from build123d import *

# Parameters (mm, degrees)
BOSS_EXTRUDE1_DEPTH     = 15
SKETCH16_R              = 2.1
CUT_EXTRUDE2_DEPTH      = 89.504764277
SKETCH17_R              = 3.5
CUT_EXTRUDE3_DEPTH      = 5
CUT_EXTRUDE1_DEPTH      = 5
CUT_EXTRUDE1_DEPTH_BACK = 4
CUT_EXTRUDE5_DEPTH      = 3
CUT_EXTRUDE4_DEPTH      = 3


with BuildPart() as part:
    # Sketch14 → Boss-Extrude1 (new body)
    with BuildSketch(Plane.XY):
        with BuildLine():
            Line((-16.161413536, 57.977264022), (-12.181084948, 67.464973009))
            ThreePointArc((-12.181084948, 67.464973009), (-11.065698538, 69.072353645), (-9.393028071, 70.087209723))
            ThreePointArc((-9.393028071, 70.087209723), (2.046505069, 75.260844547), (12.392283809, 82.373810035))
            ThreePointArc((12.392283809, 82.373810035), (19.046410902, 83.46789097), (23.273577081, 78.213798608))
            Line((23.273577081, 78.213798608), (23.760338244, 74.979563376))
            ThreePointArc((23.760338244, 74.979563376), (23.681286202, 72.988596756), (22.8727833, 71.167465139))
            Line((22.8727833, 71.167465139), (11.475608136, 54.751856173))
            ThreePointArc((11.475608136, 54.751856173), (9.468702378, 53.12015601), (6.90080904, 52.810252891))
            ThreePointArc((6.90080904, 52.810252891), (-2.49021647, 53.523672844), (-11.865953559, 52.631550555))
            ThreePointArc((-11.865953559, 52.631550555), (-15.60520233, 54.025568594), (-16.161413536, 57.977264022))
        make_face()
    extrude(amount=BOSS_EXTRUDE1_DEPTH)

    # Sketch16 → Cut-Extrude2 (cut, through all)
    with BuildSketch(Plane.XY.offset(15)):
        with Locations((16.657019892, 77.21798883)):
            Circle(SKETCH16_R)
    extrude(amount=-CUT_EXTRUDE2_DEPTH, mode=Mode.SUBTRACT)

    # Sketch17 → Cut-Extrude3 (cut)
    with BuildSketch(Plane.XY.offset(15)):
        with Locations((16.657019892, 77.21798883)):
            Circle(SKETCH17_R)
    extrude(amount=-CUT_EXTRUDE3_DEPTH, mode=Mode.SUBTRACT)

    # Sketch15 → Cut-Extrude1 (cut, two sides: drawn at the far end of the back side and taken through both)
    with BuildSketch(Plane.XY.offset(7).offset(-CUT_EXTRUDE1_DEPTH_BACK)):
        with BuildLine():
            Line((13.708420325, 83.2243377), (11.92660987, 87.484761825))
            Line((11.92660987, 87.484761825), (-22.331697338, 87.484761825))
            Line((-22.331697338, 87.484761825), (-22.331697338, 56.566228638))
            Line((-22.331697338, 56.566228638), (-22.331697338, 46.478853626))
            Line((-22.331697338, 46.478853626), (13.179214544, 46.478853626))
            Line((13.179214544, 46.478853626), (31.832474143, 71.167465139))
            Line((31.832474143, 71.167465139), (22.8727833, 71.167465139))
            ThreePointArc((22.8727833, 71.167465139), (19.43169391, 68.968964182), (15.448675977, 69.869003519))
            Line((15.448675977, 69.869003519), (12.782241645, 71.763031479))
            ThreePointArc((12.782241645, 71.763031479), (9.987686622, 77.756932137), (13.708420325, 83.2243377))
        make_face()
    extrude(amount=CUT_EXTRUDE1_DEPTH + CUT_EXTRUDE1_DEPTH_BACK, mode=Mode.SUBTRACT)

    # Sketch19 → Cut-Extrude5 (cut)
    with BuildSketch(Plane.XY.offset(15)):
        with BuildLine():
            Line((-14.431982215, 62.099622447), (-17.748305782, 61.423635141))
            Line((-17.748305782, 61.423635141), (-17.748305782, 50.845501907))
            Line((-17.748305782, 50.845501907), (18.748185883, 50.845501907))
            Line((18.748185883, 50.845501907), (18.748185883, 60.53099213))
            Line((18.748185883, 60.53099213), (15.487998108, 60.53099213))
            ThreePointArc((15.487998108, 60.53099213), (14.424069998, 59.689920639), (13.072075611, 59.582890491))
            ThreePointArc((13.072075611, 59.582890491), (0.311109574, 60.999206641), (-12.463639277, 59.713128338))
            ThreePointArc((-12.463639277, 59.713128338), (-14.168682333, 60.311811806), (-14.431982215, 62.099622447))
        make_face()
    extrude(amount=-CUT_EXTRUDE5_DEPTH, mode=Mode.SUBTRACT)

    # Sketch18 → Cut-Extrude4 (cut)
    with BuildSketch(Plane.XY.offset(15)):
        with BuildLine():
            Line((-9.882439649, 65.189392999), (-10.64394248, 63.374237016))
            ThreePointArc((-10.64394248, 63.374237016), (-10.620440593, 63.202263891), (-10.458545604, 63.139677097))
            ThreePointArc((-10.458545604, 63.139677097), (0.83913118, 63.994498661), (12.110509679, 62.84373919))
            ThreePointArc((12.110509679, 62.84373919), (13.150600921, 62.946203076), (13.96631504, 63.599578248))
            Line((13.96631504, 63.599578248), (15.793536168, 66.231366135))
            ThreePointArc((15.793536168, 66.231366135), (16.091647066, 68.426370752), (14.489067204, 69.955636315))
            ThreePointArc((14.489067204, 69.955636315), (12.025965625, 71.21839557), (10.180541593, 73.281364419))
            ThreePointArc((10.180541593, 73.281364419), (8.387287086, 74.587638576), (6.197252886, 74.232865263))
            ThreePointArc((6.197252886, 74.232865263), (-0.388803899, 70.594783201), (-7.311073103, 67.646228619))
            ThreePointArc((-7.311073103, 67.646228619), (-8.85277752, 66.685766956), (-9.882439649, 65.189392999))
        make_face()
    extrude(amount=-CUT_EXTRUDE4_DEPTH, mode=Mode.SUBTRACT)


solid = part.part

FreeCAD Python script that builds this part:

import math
import FreeCAD as App
import Part
import Sketcher

V = App.Vector
Q = App.Units.Quantity

doc = App.newDocument("Part")
body = doc.addObject("PartDesign::Body", "Body")

# Sketch on XY plane
sketch1 = body.newObject("Sketcher::SketchObject", "Sketch")
sketch1.AttachmentSupport = (doc.getObject("XY_Plane"), [""])
sketch1.MapMode = "FlatFace"
sketch1.addGeometry([
    Part.LineSegment(V(-12.2, 67.5, 0), V(-16.2, 58, 0)),  # 0
    Part.ArcOfCircle(Part.Circle(V(-12.6, 56.5, 0), V(0, 0, 1), 3.9), math.radians(157), math.radians(280)),  # 1
    Part.ArcOfCircle(Part.Circle(V(-2, -1.7, 0), V(0, 0, 1), 55.2), math.radians(80.77), math.radians(100.33)),  # 2
    Part.ArcOfCircle(Part.Circle(V(7.6, 57.4, 0), V(0, 0, 1), 4.7), math.radians(-99), math.radians(-35)),  # 3
    Part.LineSegment(V(11.5, 54.8, 0), V(22.9, 71.2, 0)),  # 4
    Part.ArcOfCircle(Part.Circle(V(18.5, 74.2, 0), V(0, 0, 1), 5.3), math.radians(-35), math.radians(9)),  # 5
    Part.LineSegment(V(23.8, 75, 0), V(23.3, 78.2, 0)),  # 6
    Part.ArcOfCircle(Part.Circle(V(16.7, 77.2, 0), V(0, 0, 1), 6.7), math.radians(9), math.radians(130)),  # 7
    Part.ArcOfCircle(Part.Circle(V(-32.7, 136.9, 0), V(0, 0, 1), 70.8), math.radians(-71), math.radians(-50)),  # 8
    Part.ArcOfCircle(Part.Circle(V(-7.8, 65.6, 0), V(0, 0, 1), 4.7), math.radians(109), math.radians(157)),  # 9
], False)
sketch1.addConstraint([
    Sketcher.Constraint("Tangent", 0, 2, 1, 1),
    Sketcher.Constraint("Tangent", 1, 2, 2, 2),
    Sketcher.Constraint("Tangent", 2, 1, 3, 1),
    Sketcher.Constraint("Tangent", 3, 2, 4, 1),
    Sketcher.Constraint("Tangent", 4, 2, 5, 1),
    Sketcher.Constraint("Tangent", 5, 2, 6, 1),
    Sketcher.Constraint("Tangent", 6, 2, 7, 1),
    Sketcher.Constraint("Tangent", 7, 2, 8, 2),
    Sketcher.Constraint("Tangent", 8, 1, 9, 1),
    Sketcher.Constraint("Tangent", 9, 2, 0, 1),
    Sketcher.Constraint("Radius", 3, Q("4.659128 mm")),
    Sketcher.Constraint("Radius", 5, Q("5.30094 mm")),
    Sketcher.Constraint("DistanceY", -1, 1, 3, 3, Q("57.409002 mm")),
    Sketcher.Constraint("Radius", 1, Q("3.900085 mm")),
    Sketcher.Constraint("Radius", 2, Q("55.243833 mm")),
    Sketcher.Constraint("Radius", 7, Q("6.691074 mm")),
    Sketcher.Constraint("Radius", 8, Q("70.796954 mm")),
    Sketcher.Constraint("Radius", 9, Q("4.705764 mm")),
    Sketcher.Constraint("DistanceY", -1, 1, 9, 3, Q("65.644501 mm")),
    Sketcher.Constraint("DistanceY", -1, 1, 6, 2, Q("78.213799 mm")),
    Sketcher.Constraint("DistanceX", 1, 3, 2, 3, Q("10.600802 mm")),
    Sketcher.Constraint("DistanceX", 2, 1, 3, 2, Q("4.574799 mm")),
    Sketcher.Constraint("DistanceY", 4, 2, 5, 2, Q("3.812098 mm")),
    Sketcher.Constraint("DistanceX", 7, 2, 4, 2, Q("10.480499 mm")),
    Sketcher.Constraint("Distance", 0, Q("10.288811 mm")),
    Sketcher.Constraint("Distance", 4, Q("19.984189 mm")),
    Sketcher.Constraint("DistanceX", -1, 1, 3, 3, Q("7.648461 mm")),
])
pad1 = body.newObject("PartDesign::Pad", "Pad")
pad1.Profile = sketch1
pad1.Length = 15

# Sketch on XY plane
sketch2 = body.newObject("Sketcher::SketchObject", "Sketch001")
sketch2.AttachmentSupport = (doc.getObject("XY_Plane"), [""])
sketch2.MapMode = "FlatFace"
sketch2.AttachmentOffset = App.Placement(V(0, 0, 15), App.Rotation())
sketch2.addGeometry(Part.Circle(V(16.7, 77.2, 0), V(0, 0, 1), 2.1), False)
sketch2.addConstraint([
    Sketcher.Constraint("Diameter", 0, Q("4.2 mm")),
    Sketcher.Constraint("DistanceX", -1, 1, 0, 3, Q("16.65702 mm")),
    Sketcher.Constraint("DistanceY", -1, 1, 0, 3, Q("77.217989 mm")),
])
pocket1 = body.newObject("PartDesign::Pocket", "Pocket")
pocket1.Profile = sketch2
pocket1.Type = "ThroughAll"

# Sketch on XY plane
sketch3 = body.newObject("Sketcher::SketchObject", "Sketch002")
sketch3.AttachmentSupport = (doc.getObject("XY_Plane"), [""])
sketch3.MapMode = "FlatFace"
sketch3.AttachmentOffset = App.Placement(V(0, 0, 15), App.Rotation())
sketch3.addGeometry(Part.Circle(V(16.7, 77.2, 0), V(0, 0, 1), 3.5), False)
sketch3.addConstraint([
    Sketcher.Constraint("Diameter", 0, Q("7 mm")),
    Sketcher.Constraint("DistanceX", -1, 1, 0, 3, Q("16.65702 mm")),
    Sketcher.Constraint("DistanceY", -1, 1, 0, 3, Q("77.217989 mm")),
])
pocket2 = body.newObject("PartDesign::Pocket", "Pocket001")
pocket2.Profile = sketch3
pocket2.Length = 5

# Sketch on XY plane
sketch4 = body.newObject("Sketcher::SketchObject", "Sketch003")
sketch4.AttachmentSupport = (doc.getObject("XY_Plane"), [""])
sketch4.MapMode = "FlatFace"
sketch4.AttachmentOffset = App.Placement(V(0, 0, 7), App.Rotation())
sketch4.addGeometry([
    Part.LineSegment(V(13.7, 83.2, 0), V(11.9, 87.5, 0)),  # 0
    Part.LineSegment(V(11.9, 87.5, 0), V(-22.3, 87.5, 0)),  # 1
    Part.LineSegment(V(-22.3, 87.5, 0), V(-22.3, 46.5, 0)),  # 2
    Part.LineSegment(V(-22.3, 46.5, 0), V(13.2, 46.5, 0)),  # 3
    Part.LineSegment(V(13.2, 46.5, 0), V(31.8, 71.2, 0)),  # 4
    Part.LineSegment(V(31.8, 71.2, 0), V(22.9, 71.2, 0)),  # 5
    Part.ArcOfCircle(Part.Circle(V(18.5, 74.2, 0), V(0, 0, 1), 5.3), math.radians(-125), math.radians(-35)),  # 6
    Part.LineSegment(V(15.4, 69.9, 0), V(12.8, 71.8, 0)),  # 7
    Part.ArcOfCircle(Part.Circle(V(16.7, 77.2, 0), V(0, 0, 1), 6.7), math.radians(116), math.radians(235)),  # 8
], False)
sketch4.addConstraint([
    Sketcher.Constraint("Coincident", 0, 2, 1, 1),
    Sketcher.Constraint("Coincident", 1, 2, 2, 1),
    Sketcher.Constraint("Coincident", 2, 2, 3, 1),
    Sketcher.Constraint("Coincident", 3, 2, 4, 1),
    Sketcher.Constraint("Coincident", 4, 2, 5, 1),
    Sketcher.Constraint("Coincident", 5, 2, 6, 2),
    Sketcher.Constraint("Tangent", 6, 1, 7, 1),
    Sketcher.Constraint("Tangent", 7, 2, 8, 2),
    Sketcher.Constraint("Coincident", 8, 1, 0, 1),
    Sketcher.Constraint("Horizontal", 1),
    Sketcher.Constraint("Vertical", 2),
    Sketcher.Constraint("Horizontal", 3),
    Sketcher.Constraint("Horizontal", 5),
    Sketcher.Constraint("Radius", 6, Q("5.30094 mm")),
    Sketcher.Constraint("Radius", 8, Q("6.691074 mm")),
    Sketcher.Constraint("DistanceX", 3, 1, 3, 2, Q("35.510912 mm")),
    Sketcher.Constraint("DistanceX", 5, 2, 5, 1, Q("8.959691 mm")),
    Sketcher.Constraint("DistanceY", 2, 2, 2, 1, Q("41.005908 mm")),
    Sketcher.Constraint("DistanceX", 6, 1, 4, 2, Q("16.383798 mm")),
    Sketcher.Constraint("DistanceX", 8, 1, 8, 3, Q("2.9486 mm")),
    Sketcher.Constraint("Distance", 4, Q("30.943039 mm")),
    Sketcher.Constraint("Distance", 7, Q("3.27066 mm")),
    Sketcher.Constraint("DistanceX", 1, 2, 1, 1, Q("34.258307 mm")),
    Sketcher.Constraint("DistanceX", -1, 1, 8, 3, Q("16.65702 mm")),
    Sketcher.Constraint("DistanceY", -1, 1, 8, 3, Q("77.217989 mm")),
    Sketcher.Constraint("DistanceX", -1, 1, 0, 2, Q("11.92661 mm")),
    Sketcher.Constraint("DistanceY", -1, 1, 0, 2, Q("87.484762 mm")),
])
pocket3 = body.newObject("PartDesign::Pocket", "Pocket002")
pocket3.Profile = sketch4
pocket3.Type = "TwoLengths"
pocket3.Length = 5
pocket3.Length2 = 4
pocket3.Reversed = True

# Sketch on XY plane
sketch5 = body.newObject("Sketcher::SketchObject", "Sketch004")
sketch5.AttachmentSupport = (doc.getObject("XY_Plane"), [""])
sketch5.MapMode = "FlatFace"
sketch5.AttachmentOffset = App.Placement(V(0, 0, 15), App.Rotation())
sketch5.addGeometry([
    Part.LineSegment(V(-14.4, 62.1, 0), V(-17.7, 61.4, 0)),  # 0
    Part.LineSegment(V(-17.7, 61.4, 0), V(-17.7, 50.8, 0)),  # 1
    Part.LineSegment(V(-17.7, 50.8, 0), V(18.7, 50.8, 0)),  # 2
    Part.LineSegment(V(18.7, 50.8, 0), V(18.7, 60.5, 0)),  # 3
    Part.LineSegment(V(18.7, 60.5, 0), V(15.5, 60.5, 0)),  # 4
    Part.ArcOfCircle(Part.Circle(V(13.6, 61.9, 0), V(0, 0, 1), 2.3), math.radians(-102), math.radians(-35)),  # 5
    Part.ArcOfCircle(Part.Circle(V(0, 0, 0), V(0, 0, 1), 61), math.radians(78), math.radians(102)),  # 6
    Part.ArcOfCircle(Part.Circle(V(-12.8, 61.4, 0), V(0, 0, 1), 1.7), math.radians(157), math.radians(282)),  # 7
], False)
sketch5.addConstraint([
    Sketcher.Constraint("Coincident", 0, 2, 1, 1),
    Sketcher.Constraint("Coincident", 1, 2, 2, 1),
    Sketcher.Constraint("Coincident", 2, 2, 3, 1),
    Sketcher.Constraint("Coincident", 3, 2, 4, 1),
    Sketcher.Constraint("Coincident", 4, 2, 5, 2),
    Sketcher.Constraint("Tangent", 5, 1, 6, 1),
    Sketcher.Constraint("Tangent", 6, 2, 7, 2),
    Sketcher.Constraint("Coincident", 7, 1, 0, 1),
    Sketcher.Constraint("Vertical", 1),
    Sketcher.Constraint("Horizontal", 2),
    Sketcher.Constraint("Vertical", 3),
    Sketcher.Constraint("Horizontal", 4),
    Sketcher.Constraint("Coincident", 6, 3, -1, 1),
    Sketcher.Constraint("Horizontal", 7, 3, 0, 2),
    Sketcher.Constraint("Radius", 6, Q("61 mm")),
    Sketcher.Constraint("Radius", 5, Q("2.332588 mm")),
    Sketcher.Constraint("Radius", 7, Q("1.74737 mm")),
    Sketcher.Constraint("DistanceX", -1, 1, 4, 2, Q("15.487998 mm")),
    Sketcher.Constraint("DistanceX", 2, 1, 2, 2, Q("36.496492 mm")),
    Sketcher.Constraint("DistanceY", 3, 1, 3, 2, Q("9.68549 mm")),
    Sketcher.Constraint("DistanceY", -1, 1, 1, 2, Q("50.845502 mm")),
    Sketcher.Constraint("DistanceX", 4, 2, 4, 1, Q("3.260188 mm")),
    Sketcher.Constraint("DistanceY", 1, 2, 1, 1, Q("10.578133 mm")),
    Sketcher.Constraint("DistanceY", 1, 2, 7, 1, Q("11.254121 mm")),
])
pocket4 = body.newObject("PartDesign::Pocket", "Pocket003")
pocket4.Profile = sketch5
pocket4.Length = 3

# Sketch on XY plane
sketch6 = body.newObject("Sketcher::SketchObject", "Sketch005")
sketch6.AttachmentSupport = (doc.getObject("XY_Plane"), [""])
sketch6.MapMode = "FlatFace"
sketch6.AttachmentOffset = App.Placement(V(0, 0, 15), App.Rotation())
sketch6.addGeometry([
    Part.LineSegment(V(-9.88, 65.19, 0), V(-10.64, 63.37, 0)),  # 0
    Part.ArcOfCircle(Part.Circle(V(-10.49, 63.31, 0), V(0, 0, 1), 0.17), math.radians(157), math.radians(279)),  # 1
    Part.ArcOfCircle(Part.Circle(V(0, 0, 0), V(0, 0, 1), 64), math.radians(79), math.radians(99)),  # 2
    Part.ArcOfCircle(Part.Circle(V(12.46, 64.65, 0), V(0, 0, 1), 1.84), math.radians(-101), math.radians(-35)),  # 3
    Part.LineSegment(V(13.97, 63.6, 0), V(15.79, 66.23, 0)),  # 4
    Part.ArcOfCircle(Part.Circle(V(13.79, 67.62, 0), V(0, 0, 1), 2.44), math.radians(-35), math.radians(73)),  # 5
    Part.ArcOfCircle(Part.Circle(V(16.66, 77.22, 0), V(0, 0, 1), 7.58), math.radians(-149), math.radians(-107)),  # 6
    Part.ArcOfCircle(Part.Circle(V(7.72, 71.78, 0), V(0, 0, 1), 2.88), math.radians(31), math.radians(122)),  # 7
    Part.ArcOfCircle(Part.Circle(V(-32.73, 136.93, 0), V(0, 0, 1), 73.8), math.radians(-69.85), math.radians(-58.16)),  # 8
    Part.ArcOfCircle(Part.Circle(V(-5.78, 63.47, 0), V(0, 0, 1), 4.45), math.radians(110), math.radians(157)),  # 9
], False)
sketch6.addConstraint([
    Sketcher.Constraint("Tangent", 0, 2, 1, 1),
    Sketcher.Constraint("Tangent", 1, 2, 2, 2),
    Sketcher.Constraint("Tangent", 2, 1, 3, 1),
    Sketcher.Constraint("Tangent", 3, 2, 4, 1),
    Sketcher.Constraint("Tangent", 4, 2, 5, 1),
    Sketcher.Constraint("Tangent", 5, 2, 6, 2),
    Sketcher.Constraint("Tangent", 6, 1, 7, 1),
    Sketcher.Constraint("Tangent", 7, 2, 8, 2),
    Sketcher.Constraint("Tangent", 8, 1, 9, 1),
    Sketcher.Constraint("Tangent", 9, 2, 0, 1),
    Sketcher.Constraint("Coincident", 2, 3, -1, 1),
    Sketcher.Constraint("Radius", 2, Q("64 mm")),
    Sketcher.Constraint("Radius", 9, Q("4.4513 mm")),
    Sketcher.Constraint("Radius", 5, Q("2.436512 mm")),
    Sketcher.Constraint("Radius", 7, Q("2.882171 mm")),
    Sketcher.Constraint("Radius", 1, Q("0.170786 mm")),
    Sketcher.Constraint("Radius", 3, Q("1.836237 mm")),
    Sketcher.Constraint("Radius", 6, Q("7.579036 mm")),
    Sketcher.Constraint("Radius", 8, Q("73.796954 mm")),
    Sketcher.Constraint("DistanceX", 9, 3, 3, 3, Q("18.235699 mm")),
    Sketcher.Constraint("DistanceY", 0, 2, 7, 3, Q("8.4101 mm")),
    Sketcher.Constraint("DistanceX", 1, 2, 7, 3, Q("18.176199 mm")),
    Sketcher.Constraint("DistanceY", 5, 2, 7, 3, Q("1.828701 mm")),
    Sketcher.Constraint("DistanceX", 7, 2, 7, 3, Q("1.520401 mm")),
    Sketcher.Constraint("DistanceY", 6, 1, 7, 2, Q("0.951501 mm")),
    Sketcher.Constraint("Distance", 0, Q("1.96842 mm")),
    Sketcher.Constraint("Distance", 4, Q("3.203911 mm")),
])
pocket5 = body.newObject("PartDesign::Pocket", "Pocket004")
pocket5.Profile = sketch6
pocket5.Length = 3

doc.recompute()
